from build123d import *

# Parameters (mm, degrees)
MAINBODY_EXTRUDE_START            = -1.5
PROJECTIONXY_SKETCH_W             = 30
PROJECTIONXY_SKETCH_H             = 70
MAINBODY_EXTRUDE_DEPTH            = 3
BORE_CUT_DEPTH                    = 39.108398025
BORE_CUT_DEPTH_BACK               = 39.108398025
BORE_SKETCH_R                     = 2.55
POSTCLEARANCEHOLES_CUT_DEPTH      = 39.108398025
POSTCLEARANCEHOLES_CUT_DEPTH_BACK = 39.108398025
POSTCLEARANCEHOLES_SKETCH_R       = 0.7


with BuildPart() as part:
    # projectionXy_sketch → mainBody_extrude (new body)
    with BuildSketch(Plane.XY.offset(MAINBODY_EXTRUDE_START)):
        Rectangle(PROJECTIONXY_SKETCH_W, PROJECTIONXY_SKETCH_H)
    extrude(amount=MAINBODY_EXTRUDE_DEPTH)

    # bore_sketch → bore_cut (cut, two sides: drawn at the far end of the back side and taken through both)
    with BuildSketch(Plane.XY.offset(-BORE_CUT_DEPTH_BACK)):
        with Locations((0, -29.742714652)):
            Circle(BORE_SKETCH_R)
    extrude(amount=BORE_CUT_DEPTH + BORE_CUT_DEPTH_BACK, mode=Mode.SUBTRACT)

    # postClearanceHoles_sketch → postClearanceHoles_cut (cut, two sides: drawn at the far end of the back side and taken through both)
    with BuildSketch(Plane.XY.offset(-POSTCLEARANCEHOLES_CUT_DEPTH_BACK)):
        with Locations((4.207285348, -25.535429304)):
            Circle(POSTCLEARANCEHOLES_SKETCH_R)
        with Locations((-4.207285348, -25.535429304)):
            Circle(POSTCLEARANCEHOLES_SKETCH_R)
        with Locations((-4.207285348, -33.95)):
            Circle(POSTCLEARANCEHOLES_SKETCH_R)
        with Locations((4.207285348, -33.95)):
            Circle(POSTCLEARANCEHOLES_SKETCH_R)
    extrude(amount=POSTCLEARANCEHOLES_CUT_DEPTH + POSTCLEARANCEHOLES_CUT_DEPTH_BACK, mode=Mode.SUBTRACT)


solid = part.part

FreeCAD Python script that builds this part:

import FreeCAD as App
import Part
import Sketcher
from FreeCAD import Vector
Q = App.Units.Quantity


def add_polygon(sketch, points):
    """Adds a closed chain of lines whose ends are joined by coincident constraints."""
    first, n = sketch.GeometryCount, len(points)
    for a, b in zip(points, points[1:] + points[:1]):
        sketch.addGeometry(Part.LineSegment(App.Vector(*a, 0), App.Vector(*b, 0)), False)
    for i in range(n):
        sketch.addConstraint(Sketcher.Constraint("Coincident", first + i, 2, first + (i + 1) % n, 1))

doc = App.newDocument("Part")
params = doc.addObject("Spreadsheet::Sheet", "Params")
for row, (alias, value) in enumerate([
    ("sketch1_width", "30 mm"),
    ("sketch1_height", "70 mm"),
    ("pad1_length", "3 mm"),
    ("sketch2_diameter", "5.1 mm"),
    ("sketch3_diameter", "1.4 mm"),
], start=1):
    params.set(f"A{row}", alias)
    params.set(f"B{row}", "=" + value)
    params.setAlias(f"B{row}", alias)

body = doc.addObject("PartDesign::Body", "Body")

sketch1 = body.newObject("Sketcher::SketchObject", "Sketch")
sketch1.AttachmentSupport = (doc.getObject("XY_Plane"), [""])
sketch1.MapMode = "FlatFace"
sketch1.AttachmentOffset = App.Placement(Vector(0, 0, -1.5), App.Rotation())
add_polygon(sketch1, [(-15, 35), (-15, -35), (15, -35), (15, 35)])
sketch1.addConstraint([
    Sketcher.Constraint("Vertical", 0),
    Sketcher.Constraint("Horizontal", 1),
    Sketcher.Constraint("Vertical", 2),
    Sketcher.Constraint("Horizontal", 3),
    Sketcher.Constraint("Symmetric", 0, 2, 2, 2, -1, 1),
    Sketcher.Constraint("DistanceX", 1, 1, 1, 2, Q("30 mm")),
    Sketcher.Constraint("DistanceY", 0, 2, 0, 1, Q("70 mm")),
])
sketch1.setExpression("Constraints[9]", "Params.sketch1_width")
sketch1.setExpression("Constraints[10]", "Params.sketch1_height")
pad1 = body.newObject("PartDesign::Pad", "Pad")
pad1.Profile = sketch1
pad1.setExpression("Length", "Params.pad1_length")

sketch2 = body.newObject("Sketcher::SketchObject", "Sketch001")
sketch2.AttachmentSupport = (doc.getObject("XY_Plane"), [""])
sketch2.MapMode = "FlatFace"
sketch2.addGeometry(Part.Circle(Vector(0, -29.7, 0), Vector(0, 0, 1), 2.5), False)
sketch2.addConstraint([
    Sketcher.Constraint("PointOnObject", 0, 3, -2),
    Sketcher.Constraint("Diameter", 0, Q("5.1 mm")),
    Sketcher.Constraint("DistanceY", 0, 3, -1, 1, Q("29.742715 mm")),
])
sketch2.setExpression("Constraints[1]", "Params.sketch2_diameter")
pocket1 = body.newObject("PartDesign::Pocket", "Pocket")
pocket1.Profile = sketch2
pocket1.Type = "ThroughAll"
pocket1.Midplane = True

sketch3 = body.newObject("Sketcher::SketchObject", "Sketch002")
sketch3.AttachmentSupport = (doc.getObject("XY_Plane"), [""])
sketch3.MapMode = "FlatFace"
sketch3.addGeometry([
    Part.Circle(Vector(4.2, -25.5, 0), Vector(0, 0, 1), 0.7),
    Part.Circle(Vector(-4.2, -25.5, 0), Vector(0, 0, 1), 0.7),
    Part.Circle(Vector(-4.2, -34, 0), Vector(0, 0, 1), 0.7),
    Part.Circle(Vector(4.2, -34, 0), Vector(0, 0, 1), 0.7),
], False)
sketch3.addConstraint([
    Sketcher.Constraint("Equal", 0, 1),
    Sketcher.Constraint("Equal", 1, 2),
    Sketcher.Constraint("Equal", 2, 3),
    Sketcher.Constraint("Symmetric", 0, 3, 1, 3, -2),
    Sketcher.Constraint("Symmetric", 2, 3, 3, 3, -2),
    Sketcher.Constraint("Vertical", 1, 3, 2, 3),
    Sketcher.Constraint("Diameter", 0, Q("1.4 mm")),
    Sketcher.Constraint("DistanceY", 2, 3, -1, 1, Q("33.95 mm")),
    Sketcher.Constraint("DistanceY", 0, 3, -1, 1, Q("25.535429 mm")),
    Sketcher.Constraint("DistanceX", 1, 3, 0, 3, Q("8.414571 mm")),
])
sketch3.setExpression("Constraints[6]", "Params.sketch3_diameter")
pocket2 = body.newObject("PartDesign::Pocket", "Pocket001")
pocket2.Profile = sketch3
pocket2.Type = "ThroughAll"
pocket2.Midplane = True

doc.recompute()
